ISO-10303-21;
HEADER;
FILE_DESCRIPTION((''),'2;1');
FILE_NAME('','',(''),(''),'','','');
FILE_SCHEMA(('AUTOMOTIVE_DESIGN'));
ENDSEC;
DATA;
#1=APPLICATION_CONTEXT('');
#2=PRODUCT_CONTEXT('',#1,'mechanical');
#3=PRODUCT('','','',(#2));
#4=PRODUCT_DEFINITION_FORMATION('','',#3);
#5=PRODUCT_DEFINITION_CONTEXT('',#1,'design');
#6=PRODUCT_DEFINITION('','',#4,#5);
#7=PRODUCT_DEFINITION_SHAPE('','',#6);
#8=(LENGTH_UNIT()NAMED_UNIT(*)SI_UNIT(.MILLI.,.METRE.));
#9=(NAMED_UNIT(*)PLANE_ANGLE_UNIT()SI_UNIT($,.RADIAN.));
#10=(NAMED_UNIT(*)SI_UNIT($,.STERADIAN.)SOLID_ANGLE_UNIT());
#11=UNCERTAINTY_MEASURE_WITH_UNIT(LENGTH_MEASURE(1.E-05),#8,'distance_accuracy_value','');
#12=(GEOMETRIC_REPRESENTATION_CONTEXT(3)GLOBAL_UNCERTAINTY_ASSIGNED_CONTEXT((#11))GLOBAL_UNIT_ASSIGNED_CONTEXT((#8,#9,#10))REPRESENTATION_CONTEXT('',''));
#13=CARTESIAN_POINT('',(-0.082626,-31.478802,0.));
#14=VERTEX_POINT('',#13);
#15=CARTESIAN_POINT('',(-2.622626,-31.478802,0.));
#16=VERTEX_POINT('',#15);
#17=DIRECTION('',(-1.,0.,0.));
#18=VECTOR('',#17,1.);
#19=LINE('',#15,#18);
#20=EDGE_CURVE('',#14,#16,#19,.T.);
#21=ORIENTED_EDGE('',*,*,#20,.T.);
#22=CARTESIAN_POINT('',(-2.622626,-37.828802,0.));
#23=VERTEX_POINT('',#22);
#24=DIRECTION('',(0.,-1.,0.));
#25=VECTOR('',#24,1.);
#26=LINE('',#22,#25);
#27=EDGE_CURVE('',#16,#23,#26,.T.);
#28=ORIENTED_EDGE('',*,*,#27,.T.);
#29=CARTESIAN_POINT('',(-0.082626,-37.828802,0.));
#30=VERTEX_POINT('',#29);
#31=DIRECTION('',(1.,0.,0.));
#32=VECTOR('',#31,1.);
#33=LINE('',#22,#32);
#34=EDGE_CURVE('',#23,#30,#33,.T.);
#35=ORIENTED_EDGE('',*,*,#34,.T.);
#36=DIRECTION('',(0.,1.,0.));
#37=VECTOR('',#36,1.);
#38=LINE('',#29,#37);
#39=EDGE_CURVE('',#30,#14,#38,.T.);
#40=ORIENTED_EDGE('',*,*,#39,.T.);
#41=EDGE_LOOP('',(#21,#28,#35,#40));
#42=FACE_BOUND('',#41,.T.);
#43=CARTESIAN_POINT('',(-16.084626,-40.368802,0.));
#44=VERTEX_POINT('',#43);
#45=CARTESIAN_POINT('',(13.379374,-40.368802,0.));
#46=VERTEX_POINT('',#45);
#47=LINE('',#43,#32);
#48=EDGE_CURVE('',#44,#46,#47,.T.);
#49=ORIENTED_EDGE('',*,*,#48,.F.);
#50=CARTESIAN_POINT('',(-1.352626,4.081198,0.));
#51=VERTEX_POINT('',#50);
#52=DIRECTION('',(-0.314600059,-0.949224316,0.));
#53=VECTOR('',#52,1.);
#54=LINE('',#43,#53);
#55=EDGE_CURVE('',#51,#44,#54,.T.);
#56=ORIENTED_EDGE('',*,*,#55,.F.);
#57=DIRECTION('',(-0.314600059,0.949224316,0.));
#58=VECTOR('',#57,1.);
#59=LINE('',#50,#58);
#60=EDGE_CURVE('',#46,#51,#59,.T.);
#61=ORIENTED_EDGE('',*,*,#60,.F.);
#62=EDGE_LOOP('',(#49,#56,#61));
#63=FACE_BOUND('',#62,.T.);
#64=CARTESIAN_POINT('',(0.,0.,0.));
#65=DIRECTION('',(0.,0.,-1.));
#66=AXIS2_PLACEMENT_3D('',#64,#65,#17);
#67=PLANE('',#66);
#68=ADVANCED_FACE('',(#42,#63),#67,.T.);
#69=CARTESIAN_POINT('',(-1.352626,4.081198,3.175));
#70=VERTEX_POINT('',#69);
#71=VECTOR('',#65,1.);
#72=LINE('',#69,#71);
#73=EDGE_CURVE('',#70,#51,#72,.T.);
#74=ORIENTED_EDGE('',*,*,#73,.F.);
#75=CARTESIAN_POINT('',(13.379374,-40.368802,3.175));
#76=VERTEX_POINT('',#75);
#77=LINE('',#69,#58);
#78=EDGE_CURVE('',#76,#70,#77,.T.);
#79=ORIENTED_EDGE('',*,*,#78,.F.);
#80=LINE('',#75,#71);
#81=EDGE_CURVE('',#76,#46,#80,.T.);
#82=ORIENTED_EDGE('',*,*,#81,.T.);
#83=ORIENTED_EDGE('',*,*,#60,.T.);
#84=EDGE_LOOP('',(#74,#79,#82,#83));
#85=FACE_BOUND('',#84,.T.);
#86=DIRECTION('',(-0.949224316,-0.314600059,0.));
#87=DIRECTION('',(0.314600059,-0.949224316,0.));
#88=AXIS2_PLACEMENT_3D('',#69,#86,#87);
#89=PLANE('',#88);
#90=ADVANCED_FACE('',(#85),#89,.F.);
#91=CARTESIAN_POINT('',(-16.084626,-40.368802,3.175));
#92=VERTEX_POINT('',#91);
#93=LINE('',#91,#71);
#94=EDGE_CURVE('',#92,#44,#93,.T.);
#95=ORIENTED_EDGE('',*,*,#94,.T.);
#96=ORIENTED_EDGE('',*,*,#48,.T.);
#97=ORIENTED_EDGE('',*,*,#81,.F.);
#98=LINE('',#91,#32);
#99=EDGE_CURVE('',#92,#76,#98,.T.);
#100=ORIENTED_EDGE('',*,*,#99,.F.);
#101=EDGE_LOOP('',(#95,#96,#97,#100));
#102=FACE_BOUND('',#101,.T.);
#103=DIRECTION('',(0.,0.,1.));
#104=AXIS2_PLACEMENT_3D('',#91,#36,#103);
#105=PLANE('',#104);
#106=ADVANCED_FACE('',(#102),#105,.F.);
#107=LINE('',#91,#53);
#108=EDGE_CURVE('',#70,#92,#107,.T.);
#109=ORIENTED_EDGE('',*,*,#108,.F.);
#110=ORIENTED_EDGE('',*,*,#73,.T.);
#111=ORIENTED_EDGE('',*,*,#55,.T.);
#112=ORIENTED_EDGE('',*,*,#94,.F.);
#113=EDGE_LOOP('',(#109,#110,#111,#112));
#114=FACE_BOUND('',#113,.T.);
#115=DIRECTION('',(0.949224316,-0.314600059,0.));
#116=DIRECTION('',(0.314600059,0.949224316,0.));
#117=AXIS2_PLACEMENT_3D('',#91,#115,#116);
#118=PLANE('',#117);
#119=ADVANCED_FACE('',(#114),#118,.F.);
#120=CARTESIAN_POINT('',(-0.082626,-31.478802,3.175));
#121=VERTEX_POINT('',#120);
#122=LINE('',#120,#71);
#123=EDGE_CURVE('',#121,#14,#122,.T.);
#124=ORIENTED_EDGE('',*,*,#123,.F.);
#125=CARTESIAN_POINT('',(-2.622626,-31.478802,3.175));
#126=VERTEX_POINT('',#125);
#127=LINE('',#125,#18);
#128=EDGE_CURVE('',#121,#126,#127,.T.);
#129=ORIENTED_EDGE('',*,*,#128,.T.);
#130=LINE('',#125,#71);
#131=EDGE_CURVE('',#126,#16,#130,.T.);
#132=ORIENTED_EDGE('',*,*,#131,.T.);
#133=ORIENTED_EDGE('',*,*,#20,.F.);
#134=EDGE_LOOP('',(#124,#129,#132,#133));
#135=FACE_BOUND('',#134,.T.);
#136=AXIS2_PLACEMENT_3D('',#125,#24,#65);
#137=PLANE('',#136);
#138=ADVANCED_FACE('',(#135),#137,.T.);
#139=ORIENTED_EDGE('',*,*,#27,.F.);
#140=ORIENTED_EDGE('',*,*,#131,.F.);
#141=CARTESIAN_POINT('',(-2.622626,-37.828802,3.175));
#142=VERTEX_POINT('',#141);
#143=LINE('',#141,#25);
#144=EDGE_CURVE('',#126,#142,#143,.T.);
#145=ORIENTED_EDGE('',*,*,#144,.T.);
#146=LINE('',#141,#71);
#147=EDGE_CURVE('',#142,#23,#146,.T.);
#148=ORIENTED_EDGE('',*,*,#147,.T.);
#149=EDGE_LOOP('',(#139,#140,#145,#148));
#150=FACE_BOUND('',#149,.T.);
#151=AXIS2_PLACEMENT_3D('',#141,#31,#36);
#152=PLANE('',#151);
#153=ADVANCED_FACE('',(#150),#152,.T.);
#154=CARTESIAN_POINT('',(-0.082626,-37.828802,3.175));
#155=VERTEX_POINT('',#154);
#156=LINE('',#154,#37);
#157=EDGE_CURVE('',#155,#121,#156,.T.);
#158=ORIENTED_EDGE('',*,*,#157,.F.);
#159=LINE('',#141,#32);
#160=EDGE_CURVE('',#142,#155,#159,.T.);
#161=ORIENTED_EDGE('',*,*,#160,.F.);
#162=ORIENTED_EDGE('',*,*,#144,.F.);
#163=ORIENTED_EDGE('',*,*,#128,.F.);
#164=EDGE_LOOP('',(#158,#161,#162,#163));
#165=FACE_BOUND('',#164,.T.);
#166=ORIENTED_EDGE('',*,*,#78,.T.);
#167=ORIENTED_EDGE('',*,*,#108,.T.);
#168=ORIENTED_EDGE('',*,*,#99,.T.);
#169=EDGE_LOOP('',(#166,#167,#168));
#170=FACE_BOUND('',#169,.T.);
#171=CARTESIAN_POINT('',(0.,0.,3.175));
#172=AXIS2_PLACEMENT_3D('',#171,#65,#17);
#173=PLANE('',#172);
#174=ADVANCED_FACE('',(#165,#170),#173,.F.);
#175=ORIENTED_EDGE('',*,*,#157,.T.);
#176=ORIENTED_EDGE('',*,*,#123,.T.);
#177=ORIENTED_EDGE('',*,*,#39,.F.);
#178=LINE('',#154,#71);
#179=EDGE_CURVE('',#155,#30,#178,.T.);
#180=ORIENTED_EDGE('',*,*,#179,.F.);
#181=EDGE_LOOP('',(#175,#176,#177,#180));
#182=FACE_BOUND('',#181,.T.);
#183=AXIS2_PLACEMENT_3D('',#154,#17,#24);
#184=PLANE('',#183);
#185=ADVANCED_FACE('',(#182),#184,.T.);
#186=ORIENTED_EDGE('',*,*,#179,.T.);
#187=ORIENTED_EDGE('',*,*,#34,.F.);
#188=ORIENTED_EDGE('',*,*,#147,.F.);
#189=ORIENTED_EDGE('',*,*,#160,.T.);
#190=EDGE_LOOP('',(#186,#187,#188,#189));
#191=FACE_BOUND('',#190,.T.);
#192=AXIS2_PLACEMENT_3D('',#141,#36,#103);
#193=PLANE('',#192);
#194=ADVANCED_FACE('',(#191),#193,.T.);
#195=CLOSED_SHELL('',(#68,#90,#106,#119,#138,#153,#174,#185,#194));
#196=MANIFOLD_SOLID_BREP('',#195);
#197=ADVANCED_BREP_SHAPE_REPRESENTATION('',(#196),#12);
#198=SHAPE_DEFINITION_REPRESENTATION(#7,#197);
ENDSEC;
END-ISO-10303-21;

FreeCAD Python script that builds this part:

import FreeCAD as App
import Part
import Sketcher
from FreeCAD import Vector
Q = App.Units.Quantity


def add_polygon(sketch, points):
    """Adds a closed chain of lines whose ends are joined by coincident constraints."""
    first, n = sketch.GeometryCount, len(points)
    for a, b in zip(points, points[1:] + points[:1]):
        sketch.addGeometry(Part.LineSegment(App.Vector(*a, 0), App.Vector(*b, 0)), False)
    for i in range(n):
        sketch.addConstraint(Sketcher.Constraint("Coincident", first + i, 2, first + (i + 1) % n, 1))

doc = App.newDocument("Part")
params = doc.addObject("Spreadsheet::Sheet", "Params")
for row, (alias, value) in enumerate([
    ("sketch1_width", "0.1 in"),
    ("sketch1_width2", "1.16 in"),
    ("sketch1_height", "0.25 in"),
    ("pad1_length", "0.125 in"),
], start=1):
    params.set(f"A{row}", alias)
    params.set(f"B{row}", "=" + value)
    params.setAlias(f"B{row}", alias)

body = doc.addObject("PartDesign::Body", "Body")

sketch1 = doc.addObject("Sketcher::SketchObject", "Sketch")
body.addObject(sketch1)
sketch1.AttachmentSupport = (doc.XY_Plane, [""])
sketch1.MapMode = "FlatFace"
add_polygon(sketch1, [(-1.4, 4.1), (-16.1, -40.4), (13.4, -40.4)])
add_polygon(sketch1, [(-2.6, -37.8), (-2.6, -31.5), (-0.1, -31.5), (-0.1, -37.8)])
sketch1.addConstraint([
    Sketcher.Constraint("Horizontal", 1),
    Sketcher.Constraint("Vertical", 3),
    Sketcher.Constraint("Horizontal", 4),
    Sketcher.Constraint("Vertical", 5),
    Sketcher.Constraint("Horizontal", 6),
    Sketcher.Constraint("Equal", 0, 2),
    Sketcher.Constraint("DistanceX", 4, 1, 4, 2, Q("0.1 in")),
    Sketcher.Constraint("DistanceX", 1, 1, 1, 2, Q("1.16 in")),
    Sketcher.Constraint("DistanceY", 3, 1, 3, 2, Q("0.25 in")),
    Sketcher.Constraint("DistanceY", 3, 2, 2, 2, Q("1.4 in")),
    Sketcher.Constraint("DistanceY", 1, 2, 5, 2, Q("0.1 in")),
    Sketcher.Constraint("DistanceX", 0, 2, 3, 2, Q("0.53 in")),
    Sketcher.Constraint("DistanceX", 0, 2, -1, 1, Q("16.084626 mm")),
    Sketcher.Constraint("DistanceY", 0, 2, -1, 1, Q("40.368802 mm")),
])
sketch1.setExpression("Constraints[13]", "Params.sketch1_width")
sketch1.setExpression("Constraints[14]", "Params.sketch1_width2")
sketch1.setExpression("Constraints[15]", "Params.sketch1_height")
pad1 = doc.addObject("PartDesign::Pad", "Pad")
body.addObject(pad1)
pad1.Profile = sketch1
pad1.setExpression("Length", "Params.pad1_length")

doc.recompute()
